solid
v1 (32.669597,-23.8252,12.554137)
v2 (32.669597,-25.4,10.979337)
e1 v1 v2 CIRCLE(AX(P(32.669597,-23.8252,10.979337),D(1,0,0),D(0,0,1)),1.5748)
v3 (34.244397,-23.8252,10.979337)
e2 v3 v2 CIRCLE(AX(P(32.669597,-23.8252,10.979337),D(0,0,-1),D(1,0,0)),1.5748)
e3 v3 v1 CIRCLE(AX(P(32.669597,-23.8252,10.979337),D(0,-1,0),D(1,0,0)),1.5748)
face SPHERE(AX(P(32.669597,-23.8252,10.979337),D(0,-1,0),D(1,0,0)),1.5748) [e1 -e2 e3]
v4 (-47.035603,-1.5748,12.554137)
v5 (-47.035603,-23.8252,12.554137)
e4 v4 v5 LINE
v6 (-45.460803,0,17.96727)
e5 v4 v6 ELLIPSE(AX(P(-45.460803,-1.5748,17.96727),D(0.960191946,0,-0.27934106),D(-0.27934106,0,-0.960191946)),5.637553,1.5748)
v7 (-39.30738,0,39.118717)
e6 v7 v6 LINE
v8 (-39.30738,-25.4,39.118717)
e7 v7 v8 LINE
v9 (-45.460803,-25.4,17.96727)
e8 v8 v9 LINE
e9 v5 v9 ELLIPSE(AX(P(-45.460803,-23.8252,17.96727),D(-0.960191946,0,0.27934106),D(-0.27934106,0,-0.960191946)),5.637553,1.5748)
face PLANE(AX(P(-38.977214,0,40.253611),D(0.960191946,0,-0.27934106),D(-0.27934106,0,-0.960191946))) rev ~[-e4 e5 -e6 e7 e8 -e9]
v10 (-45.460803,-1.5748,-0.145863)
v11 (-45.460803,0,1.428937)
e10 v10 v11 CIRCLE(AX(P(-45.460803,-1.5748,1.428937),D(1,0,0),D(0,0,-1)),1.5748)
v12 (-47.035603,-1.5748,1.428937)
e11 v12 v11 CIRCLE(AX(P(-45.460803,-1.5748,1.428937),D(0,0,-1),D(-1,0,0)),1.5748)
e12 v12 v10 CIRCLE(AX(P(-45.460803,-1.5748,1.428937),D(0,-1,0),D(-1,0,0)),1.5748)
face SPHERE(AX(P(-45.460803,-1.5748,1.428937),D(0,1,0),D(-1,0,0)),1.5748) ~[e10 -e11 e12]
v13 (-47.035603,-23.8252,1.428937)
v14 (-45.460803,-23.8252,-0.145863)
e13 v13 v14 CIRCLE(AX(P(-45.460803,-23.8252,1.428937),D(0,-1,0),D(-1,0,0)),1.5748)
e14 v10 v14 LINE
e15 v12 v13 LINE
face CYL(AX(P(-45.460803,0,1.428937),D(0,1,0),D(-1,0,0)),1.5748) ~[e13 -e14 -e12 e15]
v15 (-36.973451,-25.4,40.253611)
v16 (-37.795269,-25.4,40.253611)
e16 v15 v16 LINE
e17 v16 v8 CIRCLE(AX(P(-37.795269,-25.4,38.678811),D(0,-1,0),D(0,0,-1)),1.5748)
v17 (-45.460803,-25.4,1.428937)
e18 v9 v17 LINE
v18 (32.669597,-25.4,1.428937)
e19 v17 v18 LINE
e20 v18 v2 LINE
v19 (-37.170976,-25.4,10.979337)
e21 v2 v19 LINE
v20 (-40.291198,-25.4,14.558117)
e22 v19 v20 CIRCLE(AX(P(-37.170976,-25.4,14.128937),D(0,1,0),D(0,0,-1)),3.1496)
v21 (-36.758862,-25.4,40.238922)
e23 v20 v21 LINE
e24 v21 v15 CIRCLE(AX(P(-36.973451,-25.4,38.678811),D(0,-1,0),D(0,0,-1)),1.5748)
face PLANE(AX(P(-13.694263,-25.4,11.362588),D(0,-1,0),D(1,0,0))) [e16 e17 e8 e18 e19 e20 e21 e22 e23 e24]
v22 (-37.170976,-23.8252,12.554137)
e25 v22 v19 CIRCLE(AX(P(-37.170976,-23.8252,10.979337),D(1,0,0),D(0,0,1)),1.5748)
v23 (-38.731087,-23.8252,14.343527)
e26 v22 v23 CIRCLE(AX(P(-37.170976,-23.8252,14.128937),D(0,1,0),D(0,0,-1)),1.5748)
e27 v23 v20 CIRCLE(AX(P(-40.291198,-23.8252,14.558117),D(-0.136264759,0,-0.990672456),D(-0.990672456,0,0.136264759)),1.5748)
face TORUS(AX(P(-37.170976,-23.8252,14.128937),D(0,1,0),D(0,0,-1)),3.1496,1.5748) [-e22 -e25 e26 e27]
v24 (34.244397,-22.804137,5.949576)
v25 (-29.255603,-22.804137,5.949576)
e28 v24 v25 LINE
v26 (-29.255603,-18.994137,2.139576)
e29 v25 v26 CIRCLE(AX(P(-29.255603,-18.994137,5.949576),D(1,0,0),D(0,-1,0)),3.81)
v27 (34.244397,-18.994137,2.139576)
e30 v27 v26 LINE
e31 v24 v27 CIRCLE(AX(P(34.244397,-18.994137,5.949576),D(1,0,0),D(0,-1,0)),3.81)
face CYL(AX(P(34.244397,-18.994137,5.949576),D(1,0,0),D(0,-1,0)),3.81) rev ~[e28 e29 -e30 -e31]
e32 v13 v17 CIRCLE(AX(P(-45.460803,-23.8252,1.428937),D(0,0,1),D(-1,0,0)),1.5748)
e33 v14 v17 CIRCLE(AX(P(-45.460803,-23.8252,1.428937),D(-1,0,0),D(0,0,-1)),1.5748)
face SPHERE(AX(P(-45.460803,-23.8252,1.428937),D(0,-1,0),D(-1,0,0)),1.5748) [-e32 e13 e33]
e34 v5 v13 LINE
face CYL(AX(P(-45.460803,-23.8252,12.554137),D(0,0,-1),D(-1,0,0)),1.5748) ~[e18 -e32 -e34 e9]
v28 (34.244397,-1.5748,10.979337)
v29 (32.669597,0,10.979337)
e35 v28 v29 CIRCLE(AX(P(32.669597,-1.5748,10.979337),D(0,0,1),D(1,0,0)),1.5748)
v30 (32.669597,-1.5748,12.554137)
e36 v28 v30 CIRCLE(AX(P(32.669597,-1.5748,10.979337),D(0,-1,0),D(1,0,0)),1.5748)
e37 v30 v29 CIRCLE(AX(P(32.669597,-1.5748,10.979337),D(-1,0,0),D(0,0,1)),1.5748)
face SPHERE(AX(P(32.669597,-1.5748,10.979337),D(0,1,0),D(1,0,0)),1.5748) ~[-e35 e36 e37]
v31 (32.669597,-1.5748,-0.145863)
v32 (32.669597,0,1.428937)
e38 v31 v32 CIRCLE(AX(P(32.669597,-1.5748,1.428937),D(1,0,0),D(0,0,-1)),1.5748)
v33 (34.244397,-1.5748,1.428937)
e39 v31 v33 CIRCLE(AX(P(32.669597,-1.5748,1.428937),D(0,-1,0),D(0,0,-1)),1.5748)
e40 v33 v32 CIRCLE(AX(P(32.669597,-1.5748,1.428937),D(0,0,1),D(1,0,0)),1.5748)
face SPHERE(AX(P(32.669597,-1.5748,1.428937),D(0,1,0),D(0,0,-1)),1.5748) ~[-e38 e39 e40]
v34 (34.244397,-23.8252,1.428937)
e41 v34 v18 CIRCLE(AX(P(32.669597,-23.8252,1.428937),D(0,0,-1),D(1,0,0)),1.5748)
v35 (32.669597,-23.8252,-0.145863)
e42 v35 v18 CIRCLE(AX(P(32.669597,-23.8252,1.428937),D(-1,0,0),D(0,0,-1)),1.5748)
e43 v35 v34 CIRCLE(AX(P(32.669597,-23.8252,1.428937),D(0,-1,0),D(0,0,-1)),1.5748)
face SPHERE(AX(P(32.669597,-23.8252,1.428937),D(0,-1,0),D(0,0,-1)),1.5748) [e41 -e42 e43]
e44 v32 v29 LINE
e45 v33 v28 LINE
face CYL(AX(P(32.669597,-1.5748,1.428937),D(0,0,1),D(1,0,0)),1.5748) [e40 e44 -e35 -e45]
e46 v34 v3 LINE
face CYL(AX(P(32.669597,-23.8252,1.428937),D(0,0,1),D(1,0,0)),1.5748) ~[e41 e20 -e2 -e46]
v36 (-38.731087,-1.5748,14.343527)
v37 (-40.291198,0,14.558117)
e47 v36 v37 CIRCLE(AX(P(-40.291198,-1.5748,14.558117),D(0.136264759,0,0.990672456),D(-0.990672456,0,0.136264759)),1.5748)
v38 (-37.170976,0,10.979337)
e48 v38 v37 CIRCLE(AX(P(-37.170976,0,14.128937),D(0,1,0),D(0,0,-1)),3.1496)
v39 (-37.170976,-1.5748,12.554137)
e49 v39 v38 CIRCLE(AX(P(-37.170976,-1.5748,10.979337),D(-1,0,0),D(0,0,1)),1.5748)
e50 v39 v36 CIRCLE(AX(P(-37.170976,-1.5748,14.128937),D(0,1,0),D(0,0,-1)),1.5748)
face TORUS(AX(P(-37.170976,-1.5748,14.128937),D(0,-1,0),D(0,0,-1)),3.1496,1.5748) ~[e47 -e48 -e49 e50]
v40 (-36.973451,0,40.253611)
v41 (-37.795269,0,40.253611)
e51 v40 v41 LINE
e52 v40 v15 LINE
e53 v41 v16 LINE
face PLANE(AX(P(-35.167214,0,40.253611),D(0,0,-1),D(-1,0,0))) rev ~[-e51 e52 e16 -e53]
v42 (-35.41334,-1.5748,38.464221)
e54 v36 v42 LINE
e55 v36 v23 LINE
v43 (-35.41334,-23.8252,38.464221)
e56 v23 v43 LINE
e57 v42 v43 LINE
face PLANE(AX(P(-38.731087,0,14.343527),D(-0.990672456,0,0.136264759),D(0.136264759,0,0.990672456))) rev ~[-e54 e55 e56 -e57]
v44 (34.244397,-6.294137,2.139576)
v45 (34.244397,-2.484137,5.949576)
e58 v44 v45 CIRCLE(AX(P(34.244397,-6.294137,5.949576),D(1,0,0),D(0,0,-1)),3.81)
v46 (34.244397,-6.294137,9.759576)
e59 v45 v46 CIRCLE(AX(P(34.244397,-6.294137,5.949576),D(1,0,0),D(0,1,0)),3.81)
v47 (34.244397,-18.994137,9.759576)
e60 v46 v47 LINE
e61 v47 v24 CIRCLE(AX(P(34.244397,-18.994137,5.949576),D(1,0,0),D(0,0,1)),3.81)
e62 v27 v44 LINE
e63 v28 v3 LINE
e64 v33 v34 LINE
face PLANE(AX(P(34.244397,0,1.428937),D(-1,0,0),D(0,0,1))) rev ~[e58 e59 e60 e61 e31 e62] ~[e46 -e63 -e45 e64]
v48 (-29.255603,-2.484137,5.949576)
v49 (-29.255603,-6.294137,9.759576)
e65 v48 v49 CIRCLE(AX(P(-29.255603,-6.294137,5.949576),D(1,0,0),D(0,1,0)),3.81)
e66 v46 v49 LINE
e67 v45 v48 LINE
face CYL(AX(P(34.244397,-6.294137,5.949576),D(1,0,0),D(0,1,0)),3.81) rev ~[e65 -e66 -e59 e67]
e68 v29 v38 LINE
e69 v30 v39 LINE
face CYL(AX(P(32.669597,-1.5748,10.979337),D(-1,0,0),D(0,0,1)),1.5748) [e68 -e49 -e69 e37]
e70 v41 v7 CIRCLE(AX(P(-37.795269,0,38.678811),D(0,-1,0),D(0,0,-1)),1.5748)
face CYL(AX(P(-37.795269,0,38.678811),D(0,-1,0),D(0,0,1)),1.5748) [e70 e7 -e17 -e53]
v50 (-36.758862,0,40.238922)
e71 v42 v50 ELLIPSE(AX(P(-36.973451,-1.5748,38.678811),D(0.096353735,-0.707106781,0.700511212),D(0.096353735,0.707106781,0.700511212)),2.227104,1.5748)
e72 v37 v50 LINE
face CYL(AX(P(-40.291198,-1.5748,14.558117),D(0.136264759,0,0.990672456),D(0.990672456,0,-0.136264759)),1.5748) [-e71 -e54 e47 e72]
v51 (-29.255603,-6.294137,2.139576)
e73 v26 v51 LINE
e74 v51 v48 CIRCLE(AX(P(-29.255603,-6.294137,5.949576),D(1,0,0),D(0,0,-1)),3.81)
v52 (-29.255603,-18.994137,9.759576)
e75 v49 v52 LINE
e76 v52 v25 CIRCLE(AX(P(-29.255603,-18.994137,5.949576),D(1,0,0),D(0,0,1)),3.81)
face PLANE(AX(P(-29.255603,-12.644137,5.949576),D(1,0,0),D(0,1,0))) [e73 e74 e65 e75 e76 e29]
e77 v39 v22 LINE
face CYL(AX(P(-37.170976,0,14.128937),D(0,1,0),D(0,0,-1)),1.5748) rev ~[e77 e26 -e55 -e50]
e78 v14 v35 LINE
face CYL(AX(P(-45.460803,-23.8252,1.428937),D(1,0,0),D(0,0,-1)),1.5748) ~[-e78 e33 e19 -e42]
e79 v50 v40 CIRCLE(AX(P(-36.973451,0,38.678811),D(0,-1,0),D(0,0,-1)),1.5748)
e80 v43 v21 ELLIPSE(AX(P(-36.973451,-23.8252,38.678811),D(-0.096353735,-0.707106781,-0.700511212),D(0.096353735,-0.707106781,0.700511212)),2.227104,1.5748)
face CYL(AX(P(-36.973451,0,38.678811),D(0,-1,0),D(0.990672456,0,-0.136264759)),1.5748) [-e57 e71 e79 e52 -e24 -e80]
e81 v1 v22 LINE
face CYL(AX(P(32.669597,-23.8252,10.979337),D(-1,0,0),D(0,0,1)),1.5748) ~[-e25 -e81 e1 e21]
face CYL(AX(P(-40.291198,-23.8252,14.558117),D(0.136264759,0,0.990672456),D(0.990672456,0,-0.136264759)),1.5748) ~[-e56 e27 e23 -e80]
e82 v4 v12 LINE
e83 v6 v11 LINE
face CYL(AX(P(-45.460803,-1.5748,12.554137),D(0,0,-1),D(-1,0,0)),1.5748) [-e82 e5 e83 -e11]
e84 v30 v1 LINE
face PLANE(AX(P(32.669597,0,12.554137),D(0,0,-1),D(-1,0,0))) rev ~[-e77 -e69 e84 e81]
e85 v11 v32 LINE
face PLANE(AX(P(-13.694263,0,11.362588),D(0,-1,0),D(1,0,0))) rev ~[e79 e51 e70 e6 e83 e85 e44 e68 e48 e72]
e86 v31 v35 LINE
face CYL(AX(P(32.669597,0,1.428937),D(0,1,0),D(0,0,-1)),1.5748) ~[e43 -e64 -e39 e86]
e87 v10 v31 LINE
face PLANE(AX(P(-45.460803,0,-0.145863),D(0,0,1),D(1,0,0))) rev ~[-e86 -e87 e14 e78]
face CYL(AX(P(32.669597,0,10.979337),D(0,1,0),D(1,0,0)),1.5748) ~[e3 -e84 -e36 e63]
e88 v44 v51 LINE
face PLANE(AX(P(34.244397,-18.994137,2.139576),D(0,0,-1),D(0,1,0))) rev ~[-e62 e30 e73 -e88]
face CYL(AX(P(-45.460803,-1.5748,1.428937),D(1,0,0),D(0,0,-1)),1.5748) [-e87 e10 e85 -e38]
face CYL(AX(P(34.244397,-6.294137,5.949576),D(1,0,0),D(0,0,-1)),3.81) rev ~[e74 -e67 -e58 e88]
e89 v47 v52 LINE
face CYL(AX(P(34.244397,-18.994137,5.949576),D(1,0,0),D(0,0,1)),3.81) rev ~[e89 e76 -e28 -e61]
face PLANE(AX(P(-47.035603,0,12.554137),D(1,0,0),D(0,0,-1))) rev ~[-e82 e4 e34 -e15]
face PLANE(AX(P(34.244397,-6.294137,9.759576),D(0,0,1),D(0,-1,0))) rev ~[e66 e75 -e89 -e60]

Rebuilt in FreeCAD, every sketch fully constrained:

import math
import FreeCAD as App
import Part
import Sketcher

V = App.Vector
Q = App.Units.Quantity


def edges_at(feature, points):
    """Names of the edges that pass closest to the given points."""
    edges = feature.Shape.Edges
    near = lambda p: min(range(len(edges)), key=lambda i: edges[i].distToShape(Part.Vertex(*p))[0])
    return sorted({f"Edge{near(p) + 1}" for p in points})

doc = App.newDocument("Part")
body = doc.addObject("PartDesign::Body", "Body")

# Sketch on XZ plane
sketch1 = body.newObject("Sketcher::SketchObject", "Sketch")
sketch1.AttachmentSupport = (doc.getObject("XZ_Plane"), [""])
sketch1.MapMode = "FlatFace"
sketch1.addGeometry(Part.LineSegment(V(-45.460803, -0.145863, 0), V(32.669597, -0.145863, 0)), False)
sketch1.addGeometry(Part.ArcOfCircle(Part.Circle(V(32.669597, 1.428937, 0), V(0, 0, 1), 1.5748), math.radians(-90), math.radians(0)), False)
sketch1.addGeometry(Part.LineSegment(V(34.244397, 1.428937, 0), V(34.244397, 10.979337, 0)), False)
sketch1.addGeometry(Part.ArcOfCircle(Part.Circle(V(32.669597, 10.979337, 0), V(0, 0, 1), 1.5748), math.radians(0), math.radians(90)), False)
sketch1.addGeometry(Part.LineSegment(V(32.669597, 12.554137, 0), V(-37.170976, 12.554137, 0)), False)
sketch1.addGeometry(Part.ArcOfCircle(Part.Circle(V(-37.170976, 14.128937, 0), V(0, 0, 1), 1.5748), math.radians(172.168239), math.radians(270)), False)
sketch1.addGeometry(Part.LineSegment(V(-38.731087, 14.343527, 0), V(-35.167214, 40.253611, 0)), False)
sketch1.addGeometry(Part.LineSegment(V(-35.167214, 40.253611, 0), V(-38.977214, 40.253611, 0)), False)
sketch1.addGeometry(Part.LineSegment(V(-38.977214, 40.253611, 0), V(-47.035603, 12.554137, 0)), False)
sketch1.addGeometry(Part.LineSegment(V(-47.035603, 12.554137, 0), V(-47.035603, 1.428937, 0)), False)
sketch1.addGeometry(Part.ArcOfCircle(Part.Circle(V(-45.460803, 1.428937, 0), V(0, 0, 1), 1.5748), math.radians(180), math.radians(270)), False)
sketch1.addConstraint(Sketcher.Constraint("Tangent", 0, 2, 1, 1))
sketch1.addConstraint(Sketcher.Constraint("Tangent", 1, 2, 2, 1))
sketch1.addConstraint(Sketcher.Constraint("Tangent", 2, 2, 3, 1))
sketch1.addConstraint(Sketcher.Constraint("Tangent", 3, 2, 4, 1))
sketch1.addConstraint(Sketcher.Constraint("Tangent", 4, 2, 5, 2))
sketch1.addConstraint(Sketcher.Constraint("Tangent", 5, 1, 6, 1))
sketch1.addConstraint(Sketcher.Constraint("Coincident", 6, 2, 7, 1))
sketch1.addConstraint(Sketcher.Constraint("Coincident", 7, 2, 8, 1))
sketch1.addConstraint(Sketcher.Constraint("Coincident", 8, 2, 9, 1))
sketch1.addConstraint(Sketcher.Constraint("Tangent", 9, 2, 10, 1))
sketch1.addConstraint(Sketcher.Constraint("Tangent", 10, 2, 0, 1))
sketch1.addConstraint(Sketcher.Constraint("Horizontal", 0))
sketch1.addConstraint(Sketcher.Constraint("Vertical", 2))
sketch1.addConstraint(Sketcher.Constraint("Horizontal", 4))
sketch1.addConstraint(Sketcher.Constraint("Horizontal", 7))
sketch1.addConstraint(Sketcher.Constraint("Vertical", 9))
sketch1.addConstraint(Sketcher.Constraint("Equal", 1, 3))
sketch1.addConstraint(Sketcher.Constraint("Equal", 3, 5))
sketch1.addConstraint(Sketcher.Constraint("Equal", 5, 10))
sketch1.addConstraint(Sketcher.Constraint("Horizontal", 4, 2, 8, 2))
sketch1.addConstraint(Sketcher.Constraint("Radius", 1, Q("0.062 in")))
sketch1.addConstraint(Sketcher.Constraint("DistanceX", 7, 2, 7, 1, Q("0.15 in")))
sketch1.addConstraint(Sketcher.Constraint("DistanceY", 1, 3, 5, 3, Q("0.5 in")))
sketch1.addConstraint(Sketcher.Constraint("DistanceX", 0, 1, 0, 2, Q("3.076 in")))
sketch1.addConstraint(Sketcher.Constraint("Distance", 8, Q("28.84785 mm")))
sketch1.addConstraint(Sketcher.Constraint("DistanceX", 4, 2, 4, 1, Q("69.840573 mm")))
sketch1.addConstraint(Sketcher.Constraint("DistanceY", -1, 1, 6, 2, Q("40.253611 mm")))
sketch1.addConstraint(Sketcher.Constraint("DistanceX", 5, 1, 5, 3, Q("1.560111 mm")))
sketch1.addConstraint(Sketcher.Constraint("DistanceX", -1, 1, 1, 3, Q("32.669597 mm")))
pad1 = body.newObject("PartDesign::Pad", "Pad")
pad1.Profile = sketch1
pad1.Length = Q("1 in")
doc.recompute()

fillet = body.newObject("PartDesign::Fillet", "Fillet")
fillet.Base = (pad1, edges_at(pad1, [
    (-2.251, -25.4, 12.554),
    (-2.251, 0, 12.554),
    (-35.167, -12.7, 40.254),
    (-38.977, -12.7, 40.254),
]))
fillet.Radius = Q("0.062 in")

# Sketch on YZ plane
sketch2 = body.newObject("Sketcher::SketchObject", "Sketch001")
sketch2.AttachmentSupport = (doc.getObject("YZ_Plane"), [""])
sketch2.MapMode = "FlatFace"
sketch2.AttachmentOffset = App.Placement(V(0, 0, 34.244397), App.Rotation())
sketch2.addGeometry(Part.ArcOfCircle(Part.Circle(V(-6.294137, 5.949576, 0), V(0, 0, 1), 3.81), math.radians(0), math.radians(90)), False)
sketch2.addGeometry(Part.LineSegment(V(-6.294137, 9.759576, 0), V(-18.994137, 9.759576, 0)), False)
sketch2.addGeometry(Part.ArcOfCircle(Part.Circle(V(-18.994137, 5.949576, 0), V(0, 0, 1), 3.81), math.radians(90), math.radians(180)), False)
sketch2.addGeometry(Part.ArcOfCircle(Part.Circle(V(-18.994137, 5.949576, 0), V(0, 0, 1), 3.81), math.radians(180), math.radians(270)), False)
sketch2.addGeometry(Part.LineSegment(V(-18.994137, 2.139576, 0), V(-6.294137, 2.139576, 0)), False)
sketch2.addGeometry(Part.ArcOfCircle(Part.Circle(V(-6.294137, 5.949576, 0), V(0, 0, 1), 3.81), math.radians(-90), math.radians(0)), False)
sketch2.addConstraint(Sketcher.Constraint("Tangent", 0, 2, 1, 1))
sketch2.addConstraint(Sketcher.Constraint("Tangent", 1, 2, 2, 1))
sketch2.addConstraint(Sketcher.Constraint("Tangent", 2, 2, 3, 1))
sketch2.addConstraint(Sketcher.Constraint("Tangent", 3, 2, 4, 1))
sketch2.addConstraint(Sketcher.Constraint("Tangent", 4, 2, 5, 1))
sketch2.addConstraint(Sketcher.Constraint("Tangent", 5, 2, 0, 1))
sketch2.addConstraint(Sketcher.Constraint("Horizontal", 1))
sketch2.addConstraint(Sketcher.Constraint("Horizontal", 4))
sketch2.addConstraint(Sketcher.Constraint("Equal", 0, 2))
sketch2.addConstraint(Sketcher.Constraint("Equal", 2, 3))
sketch2.addConstraint(Sketcher.Constraint("Horizontal", 5, 3, 2, 2))
sketch2.addConstraint(Sketcher.Constraint("Horizontal", 2, 2, 5, 2))
sketch2.addConstraint(Sketcher.Constraint("Radius", 0, Q("0.15 in")))
sketch2.addConstraint(Sketcher.Constraint("DistanceX", 1, 2, 1, 1, Q("0.5 in")))
sketch2.addConstraint(Sketcher.Constraint("DistanceX", 0, 3, -1, 1, Q("6.294137 mm")))
sketch2.addConstraint(Sketcher.Constraint("DistanceY", -1, 1, 0, 3, Q("5.949576 mm")))
pocket1 = body.newObject("PartDesign::Pocket", "Pocket")
pocket1.Profile = sketch2
pocket1.Length = Q("2.5 in")

doc.recompute()
